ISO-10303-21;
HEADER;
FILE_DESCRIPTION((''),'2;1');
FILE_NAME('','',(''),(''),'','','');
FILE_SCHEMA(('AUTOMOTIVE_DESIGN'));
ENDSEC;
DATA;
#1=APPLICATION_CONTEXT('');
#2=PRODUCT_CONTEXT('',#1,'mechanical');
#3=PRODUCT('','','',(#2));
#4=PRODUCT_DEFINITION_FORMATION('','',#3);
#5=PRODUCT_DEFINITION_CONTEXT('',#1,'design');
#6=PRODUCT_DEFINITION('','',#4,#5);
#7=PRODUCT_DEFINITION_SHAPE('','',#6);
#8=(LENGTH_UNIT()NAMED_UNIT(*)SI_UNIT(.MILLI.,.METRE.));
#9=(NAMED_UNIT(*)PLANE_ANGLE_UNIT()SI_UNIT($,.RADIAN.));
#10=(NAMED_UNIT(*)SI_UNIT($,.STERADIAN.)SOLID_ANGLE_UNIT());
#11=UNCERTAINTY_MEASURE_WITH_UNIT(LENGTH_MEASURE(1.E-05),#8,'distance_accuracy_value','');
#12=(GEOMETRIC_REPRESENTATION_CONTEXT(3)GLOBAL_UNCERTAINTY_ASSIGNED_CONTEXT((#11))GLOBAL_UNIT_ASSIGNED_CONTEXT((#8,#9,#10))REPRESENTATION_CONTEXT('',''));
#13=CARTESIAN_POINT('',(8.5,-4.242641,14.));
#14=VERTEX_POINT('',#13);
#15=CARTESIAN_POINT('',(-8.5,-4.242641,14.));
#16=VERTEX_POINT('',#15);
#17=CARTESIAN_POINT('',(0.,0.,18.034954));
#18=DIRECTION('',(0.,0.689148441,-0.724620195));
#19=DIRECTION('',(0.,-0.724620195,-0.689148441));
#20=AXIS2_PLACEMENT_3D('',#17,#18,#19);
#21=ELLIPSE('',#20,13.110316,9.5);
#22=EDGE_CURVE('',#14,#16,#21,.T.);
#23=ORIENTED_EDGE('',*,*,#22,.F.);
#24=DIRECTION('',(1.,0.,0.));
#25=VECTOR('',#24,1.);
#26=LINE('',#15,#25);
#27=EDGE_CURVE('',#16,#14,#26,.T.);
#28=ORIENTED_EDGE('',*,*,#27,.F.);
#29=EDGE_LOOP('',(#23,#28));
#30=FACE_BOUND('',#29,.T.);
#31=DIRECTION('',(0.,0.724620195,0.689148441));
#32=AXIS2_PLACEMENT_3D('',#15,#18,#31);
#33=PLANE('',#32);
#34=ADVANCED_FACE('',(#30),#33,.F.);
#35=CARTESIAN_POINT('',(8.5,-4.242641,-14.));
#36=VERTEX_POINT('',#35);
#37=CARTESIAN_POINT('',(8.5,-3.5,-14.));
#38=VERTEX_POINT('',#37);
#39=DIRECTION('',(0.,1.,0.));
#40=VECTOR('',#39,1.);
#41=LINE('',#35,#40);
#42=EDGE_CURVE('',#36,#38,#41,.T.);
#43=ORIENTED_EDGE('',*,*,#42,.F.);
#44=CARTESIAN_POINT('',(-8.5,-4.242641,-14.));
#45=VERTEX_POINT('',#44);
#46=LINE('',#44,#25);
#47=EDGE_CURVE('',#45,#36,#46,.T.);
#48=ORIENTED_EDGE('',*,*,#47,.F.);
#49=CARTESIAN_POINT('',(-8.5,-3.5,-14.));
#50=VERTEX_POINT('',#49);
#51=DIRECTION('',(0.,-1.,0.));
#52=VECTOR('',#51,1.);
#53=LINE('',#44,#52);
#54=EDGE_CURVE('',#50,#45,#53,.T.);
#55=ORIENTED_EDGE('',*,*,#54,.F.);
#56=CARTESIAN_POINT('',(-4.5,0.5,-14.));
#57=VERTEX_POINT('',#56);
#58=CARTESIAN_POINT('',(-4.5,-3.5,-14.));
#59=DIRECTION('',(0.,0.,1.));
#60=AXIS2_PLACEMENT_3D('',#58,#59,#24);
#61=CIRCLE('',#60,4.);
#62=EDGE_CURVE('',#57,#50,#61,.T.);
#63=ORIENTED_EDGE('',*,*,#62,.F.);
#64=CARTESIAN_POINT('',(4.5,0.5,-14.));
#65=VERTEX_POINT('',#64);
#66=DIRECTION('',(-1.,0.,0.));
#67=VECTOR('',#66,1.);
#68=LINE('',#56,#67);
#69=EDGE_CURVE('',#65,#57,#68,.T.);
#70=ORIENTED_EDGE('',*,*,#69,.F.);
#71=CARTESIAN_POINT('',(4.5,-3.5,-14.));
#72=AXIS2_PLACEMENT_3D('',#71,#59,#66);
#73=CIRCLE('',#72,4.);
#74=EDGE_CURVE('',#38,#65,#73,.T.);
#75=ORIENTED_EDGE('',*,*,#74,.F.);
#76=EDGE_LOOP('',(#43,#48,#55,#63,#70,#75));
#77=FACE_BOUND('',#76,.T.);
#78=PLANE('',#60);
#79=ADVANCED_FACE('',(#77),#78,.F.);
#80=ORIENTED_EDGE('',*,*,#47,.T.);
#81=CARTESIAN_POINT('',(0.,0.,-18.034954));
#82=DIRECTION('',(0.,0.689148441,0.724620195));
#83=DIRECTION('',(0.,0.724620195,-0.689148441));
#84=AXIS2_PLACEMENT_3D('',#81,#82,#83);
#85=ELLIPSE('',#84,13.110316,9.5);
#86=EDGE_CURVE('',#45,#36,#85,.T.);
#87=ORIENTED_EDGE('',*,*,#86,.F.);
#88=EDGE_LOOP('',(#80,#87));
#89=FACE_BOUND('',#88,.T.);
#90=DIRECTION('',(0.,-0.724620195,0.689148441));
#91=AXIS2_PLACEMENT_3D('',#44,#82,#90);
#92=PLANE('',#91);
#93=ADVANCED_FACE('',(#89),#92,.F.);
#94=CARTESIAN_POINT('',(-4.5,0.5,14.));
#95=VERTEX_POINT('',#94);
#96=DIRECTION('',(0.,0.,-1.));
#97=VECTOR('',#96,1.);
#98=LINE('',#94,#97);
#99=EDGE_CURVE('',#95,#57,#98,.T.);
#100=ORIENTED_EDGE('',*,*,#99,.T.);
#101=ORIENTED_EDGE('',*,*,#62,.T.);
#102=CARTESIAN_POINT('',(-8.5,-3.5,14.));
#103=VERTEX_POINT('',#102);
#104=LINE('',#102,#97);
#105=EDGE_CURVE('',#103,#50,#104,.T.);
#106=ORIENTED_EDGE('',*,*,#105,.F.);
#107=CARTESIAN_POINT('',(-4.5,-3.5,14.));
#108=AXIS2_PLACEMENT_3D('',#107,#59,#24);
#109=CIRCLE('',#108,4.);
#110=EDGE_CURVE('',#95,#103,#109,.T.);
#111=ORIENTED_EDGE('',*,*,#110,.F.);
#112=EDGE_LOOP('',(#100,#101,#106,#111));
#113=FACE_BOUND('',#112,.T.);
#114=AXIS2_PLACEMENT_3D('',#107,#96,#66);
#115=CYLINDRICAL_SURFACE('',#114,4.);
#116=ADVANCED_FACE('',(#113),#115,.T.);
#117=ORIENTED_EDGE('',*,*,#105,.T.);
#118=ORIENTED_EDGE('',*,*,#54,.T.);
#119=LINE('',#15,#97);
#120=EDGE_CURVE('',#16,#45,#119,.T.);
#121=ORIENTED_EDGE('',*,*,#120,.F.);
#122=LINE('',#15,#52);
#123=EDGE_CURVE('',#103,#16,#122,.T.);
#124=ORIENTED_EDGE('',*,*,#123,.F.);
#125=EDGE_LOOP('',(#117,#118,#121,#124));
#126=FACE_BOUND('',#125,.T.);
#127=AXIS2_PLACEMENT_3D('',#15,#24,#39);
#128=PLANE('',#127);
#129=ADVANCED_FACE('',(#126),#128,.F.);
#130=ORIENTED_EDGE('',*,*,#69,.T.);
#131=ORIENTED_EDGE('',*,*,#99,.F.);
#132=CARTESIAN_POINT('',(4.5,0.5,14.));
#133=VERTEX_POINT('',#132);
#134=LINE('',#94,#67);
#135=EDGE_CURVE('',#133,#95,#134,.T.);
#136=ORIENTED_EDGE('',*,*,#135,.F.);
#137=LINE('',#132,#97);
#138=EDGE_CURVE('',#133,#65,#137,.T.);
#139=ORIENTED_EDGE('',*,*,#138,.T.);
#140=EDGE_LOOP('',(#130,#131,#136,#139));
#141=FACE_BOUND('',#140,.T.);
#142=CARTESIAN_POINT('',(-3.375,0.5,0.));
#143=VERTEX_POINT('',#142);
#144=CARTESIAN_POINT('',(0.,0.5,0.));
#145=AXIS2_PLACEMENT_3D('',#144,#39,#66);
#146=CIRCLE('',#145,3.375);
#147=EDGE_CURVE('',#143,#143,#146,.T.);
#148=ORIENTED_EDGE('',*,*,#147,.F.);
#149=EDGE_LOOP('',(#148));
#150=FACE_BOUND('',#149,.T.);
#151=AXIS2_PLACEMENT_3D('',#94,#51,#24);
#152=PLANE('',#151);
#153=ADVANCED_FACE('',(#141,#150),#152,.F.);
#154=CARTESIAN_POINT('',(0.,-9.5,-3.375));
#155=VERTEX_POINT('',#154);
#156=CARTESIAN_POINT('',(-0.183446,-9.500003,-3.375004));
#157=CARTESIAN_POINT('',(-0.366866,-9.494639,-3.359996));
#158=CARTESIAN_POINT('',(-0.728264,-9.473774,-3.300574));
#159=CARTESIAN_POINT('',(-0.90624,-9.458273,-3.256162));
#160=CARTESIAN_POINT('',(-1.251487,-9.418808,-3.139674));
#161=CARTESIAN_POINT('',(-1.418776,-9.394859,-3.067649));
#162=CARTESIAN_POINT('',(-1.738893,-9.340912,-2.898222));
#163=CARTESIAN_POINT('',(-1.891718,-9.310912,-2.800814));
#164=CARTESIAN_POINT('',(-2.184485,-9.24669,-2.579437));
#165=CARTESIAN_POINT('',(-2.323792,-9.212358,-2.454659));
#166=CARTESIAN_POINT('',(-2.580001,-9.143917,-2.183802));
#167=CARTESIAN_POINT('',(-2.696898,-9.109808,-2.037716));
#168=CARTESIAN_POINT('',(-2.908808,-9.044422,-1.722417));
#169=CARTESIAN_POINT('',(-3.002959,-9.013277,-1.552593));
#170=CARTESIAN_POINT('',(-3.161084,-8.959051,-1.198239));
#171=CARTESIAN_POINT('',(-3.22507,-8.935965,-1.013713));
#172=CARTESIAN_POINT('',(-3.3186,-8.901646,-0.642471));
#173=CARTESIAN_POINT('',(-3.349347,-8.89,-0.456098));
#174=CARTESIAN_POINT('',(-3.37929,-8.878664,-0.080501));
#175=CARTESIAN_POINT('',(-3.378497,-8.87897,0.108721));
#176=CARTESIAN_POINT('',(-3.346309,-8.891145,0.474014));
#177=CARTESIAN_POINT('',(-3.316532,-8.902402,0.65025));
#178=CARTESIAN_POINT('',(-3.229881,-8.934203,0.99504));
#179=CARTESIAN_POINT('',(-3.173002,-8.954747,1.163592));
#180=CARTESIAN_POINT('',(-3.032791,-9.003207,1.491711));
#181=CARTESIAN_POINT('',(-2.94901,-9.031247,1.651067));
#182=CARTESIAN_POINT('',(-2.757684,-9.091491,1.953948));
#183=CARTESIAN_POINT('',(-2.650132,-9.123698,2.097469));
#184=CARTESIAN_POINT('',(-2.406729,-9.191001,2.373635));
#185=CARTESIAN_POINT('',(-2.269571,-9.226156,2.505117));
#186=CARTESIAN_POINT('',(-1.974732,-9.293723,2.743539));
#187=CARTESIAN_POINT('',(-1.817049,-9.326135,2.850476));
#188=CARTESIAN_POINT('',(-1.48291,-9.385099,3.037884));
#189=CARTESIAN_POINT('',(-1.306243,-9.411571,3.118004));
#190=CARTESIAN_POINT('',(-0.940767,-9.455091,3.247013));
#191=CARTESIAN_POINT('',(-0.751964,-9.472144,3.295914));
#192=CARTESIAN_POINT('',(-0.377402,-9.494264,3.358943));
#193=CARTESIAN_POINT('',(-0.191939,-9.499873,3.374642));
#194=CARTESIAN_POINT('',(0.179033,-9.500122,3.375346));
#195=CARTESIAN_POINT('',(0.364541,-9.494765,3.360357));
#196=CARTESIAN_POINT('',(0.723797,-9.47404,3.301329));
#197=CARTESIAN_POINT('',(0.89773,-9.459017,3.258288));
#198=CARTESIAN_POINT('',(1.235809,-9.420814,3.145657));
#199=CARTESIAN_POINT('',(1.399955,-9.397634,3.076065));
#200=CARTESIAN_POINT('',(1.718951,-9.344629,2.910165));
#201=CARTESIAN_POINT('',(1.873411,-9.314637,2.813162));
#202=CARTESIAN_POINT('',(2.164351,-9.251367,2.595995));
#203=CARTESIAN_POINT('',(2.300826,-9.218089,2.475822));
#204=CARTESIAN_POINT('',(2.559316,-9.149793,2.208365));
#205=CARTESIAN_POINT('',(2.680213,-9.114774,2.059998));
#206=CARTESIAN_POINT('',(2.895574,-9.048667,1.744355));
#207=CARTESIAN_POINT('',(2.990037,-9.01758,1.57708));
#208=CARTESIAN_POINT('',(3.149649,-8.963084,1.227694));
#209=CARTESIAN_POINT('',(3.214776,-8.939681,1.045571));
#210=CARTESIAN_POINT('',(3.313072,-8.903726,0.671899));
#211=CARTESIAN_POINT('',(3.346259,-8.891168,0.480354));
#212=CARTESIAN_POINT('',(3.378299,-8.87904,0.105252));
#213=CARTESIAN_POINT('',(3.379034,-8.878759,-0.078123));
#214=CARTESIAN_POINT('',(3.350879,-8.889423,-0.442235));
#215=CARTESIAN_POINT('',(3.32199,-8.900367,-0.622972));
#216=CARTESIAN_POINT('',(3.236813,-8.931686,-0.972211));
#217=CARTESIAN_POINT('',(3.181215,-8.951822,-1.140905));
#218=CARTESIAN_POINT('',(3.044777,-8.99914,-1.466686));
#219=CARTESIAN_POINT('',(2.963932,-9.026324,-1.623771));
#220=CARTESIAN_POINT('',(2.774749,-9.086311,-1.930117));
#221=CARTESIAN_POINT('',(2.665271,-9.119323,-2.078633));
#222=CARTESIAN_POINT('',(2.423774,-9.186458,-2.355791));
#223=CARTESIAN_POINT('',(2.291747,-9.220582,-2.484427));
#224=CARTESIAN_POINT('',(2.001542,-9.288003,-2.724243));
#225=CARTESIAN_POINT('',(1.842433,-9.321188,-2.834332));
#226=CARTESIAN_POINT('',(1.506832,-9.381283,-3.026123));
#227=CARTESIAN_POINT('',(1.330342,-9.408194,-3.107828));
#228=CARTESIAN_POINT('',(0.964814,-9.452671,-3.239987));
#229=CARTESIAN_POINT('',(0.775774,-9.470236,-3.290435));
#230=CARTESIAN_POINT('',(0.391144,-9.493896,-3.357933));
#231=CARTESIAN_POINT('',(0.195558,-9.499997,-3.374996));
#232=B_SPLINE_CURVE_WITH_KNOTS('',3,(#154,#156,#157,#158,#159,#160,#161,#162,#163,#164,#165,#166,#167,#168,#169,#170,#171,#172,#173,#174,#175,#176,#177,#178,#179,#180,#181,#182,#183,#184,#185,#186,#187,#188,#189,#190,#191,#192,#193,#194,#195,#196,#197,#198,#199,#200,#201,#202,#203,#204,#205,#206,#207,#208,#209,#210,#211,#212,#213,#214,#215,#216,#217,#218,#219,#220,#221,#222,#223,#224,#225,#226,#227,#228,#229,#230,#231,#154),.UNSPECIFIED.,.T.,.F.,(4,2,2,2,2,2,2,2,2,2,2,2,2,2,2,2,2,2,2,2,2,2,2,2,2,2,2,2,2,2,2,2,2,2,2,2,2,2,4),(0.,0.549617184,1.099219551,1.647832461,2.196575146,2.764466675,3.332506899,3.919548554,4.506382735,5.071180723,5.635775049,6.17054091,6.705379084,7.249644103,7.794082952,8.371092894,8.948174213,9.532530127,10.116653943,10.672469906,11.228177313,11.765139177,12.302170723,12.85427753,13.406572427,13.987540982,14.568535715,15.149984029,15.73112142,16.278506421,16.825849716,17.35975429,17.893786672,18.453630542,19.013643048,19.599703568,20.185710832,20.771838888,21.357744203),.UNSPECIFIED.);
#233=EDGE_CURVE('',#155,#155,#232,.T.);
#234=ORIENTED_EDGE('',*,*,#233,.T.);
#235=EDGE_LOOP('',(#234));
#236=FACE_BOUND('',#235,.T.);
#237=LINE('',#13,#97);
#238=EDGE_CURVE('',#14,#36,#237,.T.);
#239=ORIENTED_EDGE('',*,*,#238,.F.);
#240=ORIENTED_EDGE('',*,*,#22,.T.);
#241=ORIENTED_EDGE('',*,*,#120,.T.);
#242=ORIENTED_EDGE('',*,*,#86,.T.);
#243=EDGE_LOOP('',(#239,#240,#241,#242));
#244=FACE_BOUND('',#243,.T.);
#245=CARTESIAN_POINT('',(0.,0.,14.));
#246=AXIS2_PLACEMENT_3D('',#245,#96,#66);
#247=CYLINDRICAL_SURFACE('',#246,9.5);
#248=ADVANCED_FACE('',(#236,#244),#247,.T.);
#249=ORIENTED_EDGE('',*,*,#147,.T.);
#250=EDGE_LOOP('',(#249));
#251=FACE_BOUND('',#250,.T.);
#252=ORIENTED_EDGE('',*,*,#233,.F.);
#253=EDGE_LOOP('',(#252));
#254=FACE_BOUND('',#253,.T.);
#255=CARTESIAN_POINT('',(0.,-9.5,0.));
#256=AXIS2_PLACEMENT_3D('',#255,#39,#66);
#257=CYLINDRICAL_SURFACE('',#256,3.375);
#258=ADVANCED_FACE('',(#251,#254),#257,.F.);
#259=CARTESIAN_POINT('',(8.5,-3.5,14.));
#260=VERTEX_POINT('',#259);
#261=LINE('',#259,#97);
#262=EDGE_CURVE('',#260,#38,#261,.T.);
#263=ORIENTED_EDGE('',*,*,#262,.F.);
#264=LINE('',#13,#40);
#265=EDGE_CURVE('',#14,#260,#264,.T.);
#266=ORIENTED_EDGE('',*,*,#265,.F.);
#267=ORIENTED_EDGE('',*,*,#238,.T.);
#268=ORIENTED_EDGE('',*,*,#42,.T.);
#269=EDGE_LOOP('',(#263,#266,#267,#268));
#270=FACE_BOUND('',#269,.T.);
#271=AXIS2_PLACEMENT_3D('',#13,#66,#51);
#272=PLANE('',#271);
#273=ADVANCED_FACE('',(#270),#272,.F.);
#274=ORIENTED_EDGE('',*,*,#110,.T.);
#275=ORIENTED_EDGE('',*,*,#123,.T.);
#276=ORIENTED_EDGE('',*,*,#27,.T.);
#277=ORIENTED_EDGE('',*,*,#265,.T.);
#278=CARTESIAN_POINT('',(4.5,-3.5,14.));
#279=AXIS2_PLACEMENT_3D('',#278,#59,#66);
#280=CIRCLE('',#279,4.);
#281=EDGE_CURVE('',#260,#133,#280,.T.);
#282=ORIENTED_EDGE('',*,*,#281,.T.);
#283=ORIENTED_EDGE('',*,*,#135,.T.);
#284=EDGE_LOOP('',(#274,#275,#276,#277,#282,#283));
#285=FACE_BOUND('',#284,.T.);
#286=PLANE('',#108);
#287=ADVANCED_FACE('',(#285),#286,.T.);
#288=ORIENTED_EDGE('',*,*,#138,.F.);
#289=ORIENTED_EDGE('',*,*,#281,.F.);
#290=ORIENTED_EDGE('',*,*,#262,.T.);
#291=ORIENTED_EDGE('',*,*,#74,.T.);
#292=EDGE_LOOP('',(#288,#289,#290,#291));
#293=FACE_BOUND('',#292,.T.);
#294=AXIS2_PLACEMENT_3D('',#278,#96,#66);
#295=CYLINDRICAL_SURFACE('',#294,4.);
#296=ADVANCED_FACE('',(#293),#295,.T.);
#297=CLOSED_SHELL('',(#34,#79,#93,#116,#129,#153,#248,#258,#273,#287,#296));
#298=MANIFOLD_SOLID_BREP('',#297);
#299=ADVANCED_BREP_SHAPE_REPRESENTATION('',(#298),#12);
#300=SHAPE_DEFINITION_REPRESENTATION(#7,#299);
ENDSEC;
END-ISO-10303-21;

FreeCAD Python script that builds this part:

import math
import FreeCAD as App
import Part
import Sketcher
from FreeCAD import Vector
Q = App.Units.Quantity

doc = App.newDocument("Part")
body = doc.addObject("PartDesign::Body", "Body")

sketch1 = body.newObject("Sketcher::SketchObject", "Sketch")
sketch1.AttachmentSupport = (doc.getObject("XY_Plane"), [""])
sketch1.MapMode = "FlatFace"
sketch1.addGeometry(Part.LineSegment(Vector(-8.5, -3.5, 0), Vector(-8.5, -4.242641, 0)), False)
sketch1.addGeometry(Part.ArcOfCircle(Part.Circle(Vector(0, 0, 0), Vector(0, 0, 1), 9.5), math.radians(-153.474648), math.radians(-26.525352)), False)
sketch1.addGeometry(Part.LineSegment(Vector(8.5, -4.242641, 0), Vector(8.5, -3.5, 0)), False)
sketch1.addGeometry(Part.ArcOfCircle(Part.Circle(Vector(4.5, -3.5, 0), Vector(0, 0, 1), 4), math.radians(0), math.radians(90)), False)
sketch1.addGeometry(Part.LineSegment(Vector(4.5, 0.5, 0), Vector(-4.5, 0.5, 0)), False)
sketch1.addGeometry(Part.ArcOfCircle(Part.Circle(Vector(-4.5, -3.5, 0), Vector(0, 0, 1), 4), math.radians(90), math.radians(180)), False)
sketch1.addConstraint(Sketcher.Constraint("Coincident", 0, 2, 1, 1))
sketch1.addConstraint(Sketcher.Constraint("Coincident", 1, 2, 2, 1))
sketch1.addConstraint(Sketcher.Constraint("Tangent", 2, 2, 3, 1))
sketch1.addConstraint(Sketcher.Constraint("Tangent", 3, 2, 4, 1))
sketch1.addConstraint(Sketcher.Constraint("Tangent", 4, 2, 5, 1))
sketch1.addConstraint(Sketcher.Constraint("Tangent", 5, 2, 0, 1))
sketch1.addConstraint(Sketcher.Constraint("Vertical", 0))
sketch1.addConstraint(Sketcher.Constraint("Vertical", 2))
sketch1.addConstraint(Sketcher.Constraint("Horizontal", 4))
sketch1.addConstraint(Sketcher.Constraint("Coincident", 1, 3, -1, 1))
sketch1.addConstraint(Sketcher.Constraint("Equal", 3, 5))
sketch1.addConstraint(Sketcher.Constraint("Horizontal", 0, 2, 1, 2))
sketch1.addConstraint(Sketcher.Constraint("Radius", 3, Q("4 mm")))
sketch1.addConstraint(Sketcher.Constraint("Radius", 1, Q("9.5 mm")))
sketch1.addConstraint(Sketcher.Constraint("DistanceX", 4, 2, 4, 1, Q("9 mm")))
sketch1.addConstraint(Sketcher.Constraint("DistanceY", 3, 3, -1, 1, Q("3.5 mm")))
pad1 = body.newObject("PartDesign::Pad", "Pad")
pad1.Profile = sketch1
pad1.Length = 28
pad1.Midplane = True

sketch2 = body.newObject("Sketcher::SketchObject", "Sketch001")
sketch2.AttachmentSupport = (doc.getObject("XZ_Plane"), [""])
sketch2.MapMode = "FlatFace"
sketch2.AttachmentOffset = App.Placement(Vector(0, 0, -0.5), App.Rotation())
sketch2.addGeometry(Part.Circle(Vector(0, 0, 0), Vector(0, 0, 1), 3.375), False)
sketch2.addConstraint(Sketcher.Constraint("Coincident", 0, 3, -1, 1))
sketch2.addConstraint(Sketcher.Constraint("Diameter", 0, Q("6.75 mm")))
pocket1 = body.newObject("PartDesign::Pocket", "Pocket")
pocket1.Profile = sketch2
pocket1.Type = "ThroughAll"
pocket1.Reversed = True

sketch3 = body.newObject("Sketcher::SketchObject", "Sketch002")
sketch3.AttachmentSupport = (doc.getObject("YZ_Plane"), [""])
sketch3.MapMode = "FlatFace"
sketch3.addGeometry(Part.LineSegment(Vector(-9.5, -14, 0), Vector(-4.242641, -14, 0)), False)
sketch3.addGeometry(Part.LineSegment(Vector(-4.242641, -14, 0), Vector(-9.5, -9, 0)), False)
sketch3.addGeometry(Part.LineSegment(Vector(-9.5, -9, 0), Vector(-9.5, -14, 0)), False)
sketch3.addGeometry(Part.LineSegment(Vector(-4.242641, 14, 0), Vector(-9.5, 14, 0)), False)
sketch3.addGeometry(Part.LineSegment(Vector(-9.5, 14, 0), Vector(-9.5, 9, 0)), False)
sketch3.addGeometry(Part.LineSegment(Vector(-9.5, 9, 0), Vector(-4.242641, 14, 0)), False)
sketch3.addConstraint(Sketcher.Constraint("Coincident", 0, 2, 1, 1))
sketch3.addConstraint(Sketcher.Constraint("Coincident", 1, 2, 2, 1))
sketch3.addConstraint(Sketcher.Constraint("Coincident", 2, 2, 0, 1))
sketch3.addConstraint(Sketcher.Constraint("Coincident", 3, 2, 4, 1))
sketch3.addConstraint(Sketcher.Constraint("Coincident", 4, 2, 5, 1))
sketch3.addConstraint(Sketcher.Constraint("Coincident", 5, 2, 3, 1))
sketch3.addConstraint(Sketcher.Constraint("Horizontal", 0))
sketch3.addConstraint(Sketcher.Constraint("Vertical", 2))
sketch3.addConstraint(Sketcher.Constraint("Horizontal", 3))
sketch3.addConstraint(Sketcher.Constraint("Vertical", 4))
sketch3.addConstraint(Sketcher.Constraint("Symmetric", 2, 2, 3, 2, -1))
sketch3.addConstraint(Sketcher.Constraint("Vertical", 0, 2, 5, 2))
sketch3.addConstraint(Sketcher.Constraint("Equal", 2, 4))
sketch3.addConstraint(Sketcher.Constraint("DistanceY", 2, 2, 2, 1, Q("5 mm")))
sketch3.addConstraint(Sketcher.Constraint("DistanceY", 0, 2, -1, 1, Q("14 mm")))
sketch3.addConstraint(Sketcher.Constraint("DistanceX", 1, 2, -1, 1, Q("9.5 mm")))
sketch3.addConstraint(Sketcher.Constraint("DistanceX", 0, 1, 0, 2, Q("5.257359 mm")))
pocket2 = body.newObject("PartDesign::Pocket", "Pocket001")
pocket2.Profile = sketch3
pocket2.Type = "ThroughAll"
pocket2.Midplane = True

doc.recompute()
